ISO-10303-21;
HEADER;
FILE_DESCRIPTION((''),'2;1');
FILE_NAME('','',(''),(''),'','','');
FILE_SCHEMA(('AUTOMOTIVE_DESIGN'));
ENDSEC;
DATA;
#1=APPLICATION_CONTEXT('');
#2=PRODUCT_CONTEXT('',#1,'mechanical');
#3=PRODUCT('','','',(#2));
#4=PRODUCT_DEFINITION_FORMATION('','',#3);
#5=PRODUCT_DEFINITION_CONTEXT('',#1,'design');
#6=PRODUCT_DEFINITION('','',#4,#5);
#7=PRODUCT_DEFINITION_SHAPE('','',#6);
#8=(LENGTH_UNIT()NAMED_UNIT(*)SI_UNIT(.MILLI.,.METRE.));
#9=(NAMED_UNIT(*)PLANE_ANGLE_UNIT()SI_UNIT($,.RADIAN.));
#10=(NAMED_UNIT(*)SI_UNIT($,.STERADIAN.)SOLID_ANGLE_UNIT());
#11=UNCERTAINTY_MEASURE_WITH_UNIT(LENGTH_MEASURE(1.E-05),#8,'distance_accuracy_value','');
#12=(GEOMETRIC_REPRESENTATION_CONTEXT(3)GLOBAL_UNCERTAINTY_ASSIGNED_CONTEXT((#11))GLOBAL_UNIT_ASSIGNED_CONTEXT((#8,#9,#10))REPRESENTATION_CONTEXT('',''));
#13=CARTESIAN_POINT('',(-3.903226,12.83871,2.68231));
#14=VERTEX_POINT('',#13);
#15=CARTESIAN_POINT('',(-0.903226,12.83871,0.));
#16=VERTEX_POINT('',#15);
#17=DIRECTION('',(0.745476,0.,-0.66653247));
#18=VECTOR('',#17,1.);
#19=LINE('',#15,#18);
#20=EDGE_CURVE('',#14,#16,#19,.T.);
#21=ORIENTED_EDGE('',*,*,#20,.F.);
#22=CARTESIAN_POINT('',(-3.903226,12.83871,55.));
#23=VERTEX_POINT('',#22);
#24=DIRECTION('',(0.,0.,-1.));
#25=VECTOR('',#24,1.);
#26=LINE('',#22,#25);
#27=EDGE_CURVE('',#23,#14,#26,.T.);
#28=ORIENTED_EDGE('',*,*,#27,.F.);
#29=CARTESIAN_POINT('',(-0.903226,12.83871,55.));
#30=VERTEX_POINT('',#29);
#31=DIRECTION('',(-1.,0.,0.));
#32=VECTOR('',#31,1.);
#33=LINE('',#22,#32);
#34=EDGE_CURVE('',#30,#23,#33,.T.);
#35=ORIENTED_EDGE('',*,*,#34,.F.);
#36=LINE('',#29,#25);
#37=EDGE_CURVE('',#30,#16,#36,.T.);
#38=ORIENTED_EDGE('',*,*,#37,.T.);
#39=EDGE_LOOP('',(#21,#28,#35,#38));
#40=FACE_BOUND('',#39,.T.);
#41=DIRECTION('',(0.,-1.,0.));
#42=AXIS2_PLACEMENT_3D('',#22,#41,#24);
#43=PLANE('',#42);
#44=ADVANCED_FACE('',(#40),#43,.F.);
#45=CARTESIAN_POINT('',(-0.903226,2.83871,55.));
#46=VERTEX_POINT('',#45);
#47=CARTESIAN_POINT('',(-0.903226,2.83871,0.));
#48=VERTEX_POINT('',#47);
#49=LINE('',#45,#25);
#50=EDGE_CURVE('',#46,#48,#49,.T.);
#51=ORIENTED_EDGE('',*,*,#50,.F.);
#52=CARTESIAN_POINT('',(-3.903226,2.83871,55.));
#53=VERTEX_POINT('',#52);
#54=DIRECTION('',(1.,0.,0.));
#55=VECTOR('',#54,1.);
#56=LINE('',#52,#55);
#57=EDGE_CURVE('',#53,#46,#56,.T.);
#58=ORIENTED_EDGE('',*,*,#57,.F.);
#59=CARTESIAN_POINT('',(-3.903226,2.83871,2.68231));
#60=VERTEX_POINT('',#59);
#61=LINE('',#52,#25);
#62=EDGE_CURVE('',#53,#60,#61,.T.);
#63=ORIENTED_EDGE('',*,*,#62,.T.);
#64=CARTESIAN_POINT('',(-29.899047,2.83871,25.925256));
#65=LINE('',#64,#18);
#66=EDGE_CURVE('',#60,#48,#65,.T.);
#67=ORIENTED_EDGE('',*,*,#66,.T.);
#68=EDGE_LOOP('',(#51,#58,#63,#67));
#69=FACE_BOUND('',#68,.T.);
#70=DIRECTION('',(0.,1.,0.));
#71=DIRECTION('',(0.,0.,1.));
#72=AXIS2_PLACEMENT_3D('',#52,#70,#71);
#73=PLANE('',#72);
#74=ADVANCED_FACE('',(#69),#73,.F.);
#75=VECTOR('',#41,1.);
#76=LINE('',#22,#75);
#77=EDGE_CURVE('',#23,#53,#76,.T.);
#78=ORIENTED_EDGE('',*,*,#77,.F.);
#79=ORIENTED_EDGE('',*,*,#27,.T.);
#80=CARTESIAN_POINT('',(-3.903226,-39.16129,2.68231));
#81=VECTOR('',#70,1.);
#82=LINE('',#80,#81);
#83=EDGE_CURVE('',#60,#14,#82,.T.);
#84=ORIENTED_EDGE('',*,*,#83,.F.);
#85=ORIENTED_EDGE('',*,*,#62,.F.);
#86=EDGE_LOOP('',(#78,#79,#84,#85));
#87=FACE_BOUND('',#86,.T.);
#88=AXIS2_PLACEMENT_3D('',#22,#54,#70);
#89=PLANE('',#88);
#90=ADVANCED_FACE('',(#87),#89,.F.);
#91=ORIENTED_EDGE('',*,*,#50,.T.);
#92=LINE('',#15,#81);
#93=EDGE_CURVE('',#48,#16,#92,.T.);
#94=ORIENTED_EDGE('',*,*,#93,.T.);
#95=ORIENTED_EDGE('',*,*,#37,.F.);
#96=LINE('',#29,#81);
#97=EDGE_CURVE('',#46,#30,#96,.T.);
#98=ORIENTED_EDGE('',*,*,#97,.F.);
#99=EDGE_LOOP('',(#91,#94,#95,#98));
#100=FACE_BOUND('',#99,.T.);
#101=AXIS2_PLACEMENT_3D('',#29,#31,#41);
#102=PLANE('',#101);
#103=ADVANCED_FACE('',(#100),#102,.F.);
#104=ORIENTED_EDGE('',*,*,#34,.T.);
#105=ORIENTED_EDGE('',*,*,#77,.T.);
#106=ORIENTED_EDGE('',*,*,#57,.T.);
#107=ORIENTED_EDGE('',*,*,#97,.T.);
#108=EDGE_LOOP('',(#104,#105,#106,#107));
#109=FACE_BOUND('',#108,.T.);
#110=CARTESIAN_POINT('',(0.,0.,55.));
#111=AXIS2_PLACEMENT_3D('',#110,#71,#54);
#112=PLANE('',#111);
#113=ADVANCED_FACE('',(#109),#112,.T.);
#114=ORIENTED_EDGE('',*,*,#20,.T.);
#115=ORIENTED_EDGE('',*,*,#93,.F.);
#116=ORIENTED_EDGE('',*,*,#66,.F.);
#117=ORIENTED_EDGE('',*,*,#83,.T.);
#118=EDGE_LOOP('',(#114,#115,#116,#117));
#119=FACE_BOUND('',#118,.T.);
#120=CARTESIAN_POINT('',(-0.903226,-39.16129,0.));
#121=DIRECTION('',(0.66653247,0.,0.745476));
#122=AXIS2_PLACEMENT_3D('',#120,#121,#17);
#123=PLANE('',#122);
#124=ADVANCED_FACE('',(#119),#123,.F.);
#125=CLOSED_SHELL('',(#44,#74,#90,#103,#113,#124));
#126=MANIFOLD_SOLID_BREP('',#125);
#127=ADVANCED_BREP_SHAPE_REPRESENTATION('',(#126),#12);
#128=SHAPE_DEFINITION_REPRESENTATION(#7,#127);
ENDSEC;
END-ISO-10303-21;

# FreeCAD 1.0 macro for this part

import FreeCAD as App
import Part
import Sketcher
from FreeCAD import Vector
Q = App.Units.Quantity


def add_polygon(sketch, points):
    """Adds a closed chain of lines whose ends are joined by coincident constraints."""
    first, n = sketch.GeometryCount, len(points)
    for a, b in zip(points, points[1:] + points[:1]):
        sketch.addGeometry(Part.LineSegment(App.Vector(*a, 0), App.Vector(*b, 0)), False)
    for i in range(n):
        sketch.addConstraint(Sketcher.Constraint("Coincident", first + i, 2, first + (i + 1) % n, 1))

doc = App.newDocument("Part")
body = doc.addObject("PartDesign::Body", "Body")

# Sketch on XY plane
sketch1 = body.newObject("Sketcher::SketchObject", "Sketch")
sketch1.AttachmentSupport = (doc.getObject("XY_Plane"), [""])
sketch1.MapMode = "FlatFace"
add_polygon(sketch1, [(-3.9, 12.8), (-3.9, 2.8), (-0.9, 2.8), (-0.9, 12.8)])  # lines 0-3
sketch1.addConstraint([
    Sketcher.Constraint("Vertical", 0),
    Sketcher.Constraint("Horizontal", 1),
    Sketcher.Constraint("Vertical", 2),
    Sketcher.Constraint("Horizontal", 3),
    Sketcher.Constraint("DistanceX", 1, 1, 1, 2, Q("3 mm")),
    Sketcher.Constraint("DistanceY", 0, 2, 0, 1, Q("10 mm")),
    Sketcher.Constraint("DistanceY", -1, 1, 0, 2, Q("2.83871 mm")),
    Sketcher.Constraint("DistanceX", 0, 2, -1, 1, Q("3.903226 mm")),
])
pad1 = body.newObject("PartDesign::Pad", "Pad")
pad1.Profile = sketch1
pad1.Length = 55

# Sketch on XZ plane
sketch2 = body.newObject("Sketcher::SketchObject", "Sketch001")
sketch2.AttachmentSupport = (doc.getObject("XZ_Plane"), [""])
sketch2.MapMode = "FlatFace"
sketch2.AttachmentOffset = App.Placement(Vector(0, 0, -12.83871), App.Rotation())
add_polygon(sketch2, [(-3.9, 2.7), (-0.9, 0), (-3.9, 0)])  # lines 0-2
sketch2.addConstraint([
    Sketcher.Constraint("Horizontal", 1),
    Sketcher.Constraint("Vertical", 2),
    Sketcher.Constraint("PointOnObject", 0, 2, -1),
    Sketcher.Constraint("DistanceX", 1, 2, 1, 1, Q("3 mm")),
    Sketcher.Constraint("Angle", 0, Q("-41.8 deg")),
    Sketcher.Constraint("DistanceX", 0, 2, -1, 1, Q("0.903226 mm")),
])
pocket1 = body.newObject("PartDesign::Pocket", "Pocket")
pocket1.Profile = sketch2
pocket1.Length = 52
pocket1.Reversed = True

doc.recompute()
